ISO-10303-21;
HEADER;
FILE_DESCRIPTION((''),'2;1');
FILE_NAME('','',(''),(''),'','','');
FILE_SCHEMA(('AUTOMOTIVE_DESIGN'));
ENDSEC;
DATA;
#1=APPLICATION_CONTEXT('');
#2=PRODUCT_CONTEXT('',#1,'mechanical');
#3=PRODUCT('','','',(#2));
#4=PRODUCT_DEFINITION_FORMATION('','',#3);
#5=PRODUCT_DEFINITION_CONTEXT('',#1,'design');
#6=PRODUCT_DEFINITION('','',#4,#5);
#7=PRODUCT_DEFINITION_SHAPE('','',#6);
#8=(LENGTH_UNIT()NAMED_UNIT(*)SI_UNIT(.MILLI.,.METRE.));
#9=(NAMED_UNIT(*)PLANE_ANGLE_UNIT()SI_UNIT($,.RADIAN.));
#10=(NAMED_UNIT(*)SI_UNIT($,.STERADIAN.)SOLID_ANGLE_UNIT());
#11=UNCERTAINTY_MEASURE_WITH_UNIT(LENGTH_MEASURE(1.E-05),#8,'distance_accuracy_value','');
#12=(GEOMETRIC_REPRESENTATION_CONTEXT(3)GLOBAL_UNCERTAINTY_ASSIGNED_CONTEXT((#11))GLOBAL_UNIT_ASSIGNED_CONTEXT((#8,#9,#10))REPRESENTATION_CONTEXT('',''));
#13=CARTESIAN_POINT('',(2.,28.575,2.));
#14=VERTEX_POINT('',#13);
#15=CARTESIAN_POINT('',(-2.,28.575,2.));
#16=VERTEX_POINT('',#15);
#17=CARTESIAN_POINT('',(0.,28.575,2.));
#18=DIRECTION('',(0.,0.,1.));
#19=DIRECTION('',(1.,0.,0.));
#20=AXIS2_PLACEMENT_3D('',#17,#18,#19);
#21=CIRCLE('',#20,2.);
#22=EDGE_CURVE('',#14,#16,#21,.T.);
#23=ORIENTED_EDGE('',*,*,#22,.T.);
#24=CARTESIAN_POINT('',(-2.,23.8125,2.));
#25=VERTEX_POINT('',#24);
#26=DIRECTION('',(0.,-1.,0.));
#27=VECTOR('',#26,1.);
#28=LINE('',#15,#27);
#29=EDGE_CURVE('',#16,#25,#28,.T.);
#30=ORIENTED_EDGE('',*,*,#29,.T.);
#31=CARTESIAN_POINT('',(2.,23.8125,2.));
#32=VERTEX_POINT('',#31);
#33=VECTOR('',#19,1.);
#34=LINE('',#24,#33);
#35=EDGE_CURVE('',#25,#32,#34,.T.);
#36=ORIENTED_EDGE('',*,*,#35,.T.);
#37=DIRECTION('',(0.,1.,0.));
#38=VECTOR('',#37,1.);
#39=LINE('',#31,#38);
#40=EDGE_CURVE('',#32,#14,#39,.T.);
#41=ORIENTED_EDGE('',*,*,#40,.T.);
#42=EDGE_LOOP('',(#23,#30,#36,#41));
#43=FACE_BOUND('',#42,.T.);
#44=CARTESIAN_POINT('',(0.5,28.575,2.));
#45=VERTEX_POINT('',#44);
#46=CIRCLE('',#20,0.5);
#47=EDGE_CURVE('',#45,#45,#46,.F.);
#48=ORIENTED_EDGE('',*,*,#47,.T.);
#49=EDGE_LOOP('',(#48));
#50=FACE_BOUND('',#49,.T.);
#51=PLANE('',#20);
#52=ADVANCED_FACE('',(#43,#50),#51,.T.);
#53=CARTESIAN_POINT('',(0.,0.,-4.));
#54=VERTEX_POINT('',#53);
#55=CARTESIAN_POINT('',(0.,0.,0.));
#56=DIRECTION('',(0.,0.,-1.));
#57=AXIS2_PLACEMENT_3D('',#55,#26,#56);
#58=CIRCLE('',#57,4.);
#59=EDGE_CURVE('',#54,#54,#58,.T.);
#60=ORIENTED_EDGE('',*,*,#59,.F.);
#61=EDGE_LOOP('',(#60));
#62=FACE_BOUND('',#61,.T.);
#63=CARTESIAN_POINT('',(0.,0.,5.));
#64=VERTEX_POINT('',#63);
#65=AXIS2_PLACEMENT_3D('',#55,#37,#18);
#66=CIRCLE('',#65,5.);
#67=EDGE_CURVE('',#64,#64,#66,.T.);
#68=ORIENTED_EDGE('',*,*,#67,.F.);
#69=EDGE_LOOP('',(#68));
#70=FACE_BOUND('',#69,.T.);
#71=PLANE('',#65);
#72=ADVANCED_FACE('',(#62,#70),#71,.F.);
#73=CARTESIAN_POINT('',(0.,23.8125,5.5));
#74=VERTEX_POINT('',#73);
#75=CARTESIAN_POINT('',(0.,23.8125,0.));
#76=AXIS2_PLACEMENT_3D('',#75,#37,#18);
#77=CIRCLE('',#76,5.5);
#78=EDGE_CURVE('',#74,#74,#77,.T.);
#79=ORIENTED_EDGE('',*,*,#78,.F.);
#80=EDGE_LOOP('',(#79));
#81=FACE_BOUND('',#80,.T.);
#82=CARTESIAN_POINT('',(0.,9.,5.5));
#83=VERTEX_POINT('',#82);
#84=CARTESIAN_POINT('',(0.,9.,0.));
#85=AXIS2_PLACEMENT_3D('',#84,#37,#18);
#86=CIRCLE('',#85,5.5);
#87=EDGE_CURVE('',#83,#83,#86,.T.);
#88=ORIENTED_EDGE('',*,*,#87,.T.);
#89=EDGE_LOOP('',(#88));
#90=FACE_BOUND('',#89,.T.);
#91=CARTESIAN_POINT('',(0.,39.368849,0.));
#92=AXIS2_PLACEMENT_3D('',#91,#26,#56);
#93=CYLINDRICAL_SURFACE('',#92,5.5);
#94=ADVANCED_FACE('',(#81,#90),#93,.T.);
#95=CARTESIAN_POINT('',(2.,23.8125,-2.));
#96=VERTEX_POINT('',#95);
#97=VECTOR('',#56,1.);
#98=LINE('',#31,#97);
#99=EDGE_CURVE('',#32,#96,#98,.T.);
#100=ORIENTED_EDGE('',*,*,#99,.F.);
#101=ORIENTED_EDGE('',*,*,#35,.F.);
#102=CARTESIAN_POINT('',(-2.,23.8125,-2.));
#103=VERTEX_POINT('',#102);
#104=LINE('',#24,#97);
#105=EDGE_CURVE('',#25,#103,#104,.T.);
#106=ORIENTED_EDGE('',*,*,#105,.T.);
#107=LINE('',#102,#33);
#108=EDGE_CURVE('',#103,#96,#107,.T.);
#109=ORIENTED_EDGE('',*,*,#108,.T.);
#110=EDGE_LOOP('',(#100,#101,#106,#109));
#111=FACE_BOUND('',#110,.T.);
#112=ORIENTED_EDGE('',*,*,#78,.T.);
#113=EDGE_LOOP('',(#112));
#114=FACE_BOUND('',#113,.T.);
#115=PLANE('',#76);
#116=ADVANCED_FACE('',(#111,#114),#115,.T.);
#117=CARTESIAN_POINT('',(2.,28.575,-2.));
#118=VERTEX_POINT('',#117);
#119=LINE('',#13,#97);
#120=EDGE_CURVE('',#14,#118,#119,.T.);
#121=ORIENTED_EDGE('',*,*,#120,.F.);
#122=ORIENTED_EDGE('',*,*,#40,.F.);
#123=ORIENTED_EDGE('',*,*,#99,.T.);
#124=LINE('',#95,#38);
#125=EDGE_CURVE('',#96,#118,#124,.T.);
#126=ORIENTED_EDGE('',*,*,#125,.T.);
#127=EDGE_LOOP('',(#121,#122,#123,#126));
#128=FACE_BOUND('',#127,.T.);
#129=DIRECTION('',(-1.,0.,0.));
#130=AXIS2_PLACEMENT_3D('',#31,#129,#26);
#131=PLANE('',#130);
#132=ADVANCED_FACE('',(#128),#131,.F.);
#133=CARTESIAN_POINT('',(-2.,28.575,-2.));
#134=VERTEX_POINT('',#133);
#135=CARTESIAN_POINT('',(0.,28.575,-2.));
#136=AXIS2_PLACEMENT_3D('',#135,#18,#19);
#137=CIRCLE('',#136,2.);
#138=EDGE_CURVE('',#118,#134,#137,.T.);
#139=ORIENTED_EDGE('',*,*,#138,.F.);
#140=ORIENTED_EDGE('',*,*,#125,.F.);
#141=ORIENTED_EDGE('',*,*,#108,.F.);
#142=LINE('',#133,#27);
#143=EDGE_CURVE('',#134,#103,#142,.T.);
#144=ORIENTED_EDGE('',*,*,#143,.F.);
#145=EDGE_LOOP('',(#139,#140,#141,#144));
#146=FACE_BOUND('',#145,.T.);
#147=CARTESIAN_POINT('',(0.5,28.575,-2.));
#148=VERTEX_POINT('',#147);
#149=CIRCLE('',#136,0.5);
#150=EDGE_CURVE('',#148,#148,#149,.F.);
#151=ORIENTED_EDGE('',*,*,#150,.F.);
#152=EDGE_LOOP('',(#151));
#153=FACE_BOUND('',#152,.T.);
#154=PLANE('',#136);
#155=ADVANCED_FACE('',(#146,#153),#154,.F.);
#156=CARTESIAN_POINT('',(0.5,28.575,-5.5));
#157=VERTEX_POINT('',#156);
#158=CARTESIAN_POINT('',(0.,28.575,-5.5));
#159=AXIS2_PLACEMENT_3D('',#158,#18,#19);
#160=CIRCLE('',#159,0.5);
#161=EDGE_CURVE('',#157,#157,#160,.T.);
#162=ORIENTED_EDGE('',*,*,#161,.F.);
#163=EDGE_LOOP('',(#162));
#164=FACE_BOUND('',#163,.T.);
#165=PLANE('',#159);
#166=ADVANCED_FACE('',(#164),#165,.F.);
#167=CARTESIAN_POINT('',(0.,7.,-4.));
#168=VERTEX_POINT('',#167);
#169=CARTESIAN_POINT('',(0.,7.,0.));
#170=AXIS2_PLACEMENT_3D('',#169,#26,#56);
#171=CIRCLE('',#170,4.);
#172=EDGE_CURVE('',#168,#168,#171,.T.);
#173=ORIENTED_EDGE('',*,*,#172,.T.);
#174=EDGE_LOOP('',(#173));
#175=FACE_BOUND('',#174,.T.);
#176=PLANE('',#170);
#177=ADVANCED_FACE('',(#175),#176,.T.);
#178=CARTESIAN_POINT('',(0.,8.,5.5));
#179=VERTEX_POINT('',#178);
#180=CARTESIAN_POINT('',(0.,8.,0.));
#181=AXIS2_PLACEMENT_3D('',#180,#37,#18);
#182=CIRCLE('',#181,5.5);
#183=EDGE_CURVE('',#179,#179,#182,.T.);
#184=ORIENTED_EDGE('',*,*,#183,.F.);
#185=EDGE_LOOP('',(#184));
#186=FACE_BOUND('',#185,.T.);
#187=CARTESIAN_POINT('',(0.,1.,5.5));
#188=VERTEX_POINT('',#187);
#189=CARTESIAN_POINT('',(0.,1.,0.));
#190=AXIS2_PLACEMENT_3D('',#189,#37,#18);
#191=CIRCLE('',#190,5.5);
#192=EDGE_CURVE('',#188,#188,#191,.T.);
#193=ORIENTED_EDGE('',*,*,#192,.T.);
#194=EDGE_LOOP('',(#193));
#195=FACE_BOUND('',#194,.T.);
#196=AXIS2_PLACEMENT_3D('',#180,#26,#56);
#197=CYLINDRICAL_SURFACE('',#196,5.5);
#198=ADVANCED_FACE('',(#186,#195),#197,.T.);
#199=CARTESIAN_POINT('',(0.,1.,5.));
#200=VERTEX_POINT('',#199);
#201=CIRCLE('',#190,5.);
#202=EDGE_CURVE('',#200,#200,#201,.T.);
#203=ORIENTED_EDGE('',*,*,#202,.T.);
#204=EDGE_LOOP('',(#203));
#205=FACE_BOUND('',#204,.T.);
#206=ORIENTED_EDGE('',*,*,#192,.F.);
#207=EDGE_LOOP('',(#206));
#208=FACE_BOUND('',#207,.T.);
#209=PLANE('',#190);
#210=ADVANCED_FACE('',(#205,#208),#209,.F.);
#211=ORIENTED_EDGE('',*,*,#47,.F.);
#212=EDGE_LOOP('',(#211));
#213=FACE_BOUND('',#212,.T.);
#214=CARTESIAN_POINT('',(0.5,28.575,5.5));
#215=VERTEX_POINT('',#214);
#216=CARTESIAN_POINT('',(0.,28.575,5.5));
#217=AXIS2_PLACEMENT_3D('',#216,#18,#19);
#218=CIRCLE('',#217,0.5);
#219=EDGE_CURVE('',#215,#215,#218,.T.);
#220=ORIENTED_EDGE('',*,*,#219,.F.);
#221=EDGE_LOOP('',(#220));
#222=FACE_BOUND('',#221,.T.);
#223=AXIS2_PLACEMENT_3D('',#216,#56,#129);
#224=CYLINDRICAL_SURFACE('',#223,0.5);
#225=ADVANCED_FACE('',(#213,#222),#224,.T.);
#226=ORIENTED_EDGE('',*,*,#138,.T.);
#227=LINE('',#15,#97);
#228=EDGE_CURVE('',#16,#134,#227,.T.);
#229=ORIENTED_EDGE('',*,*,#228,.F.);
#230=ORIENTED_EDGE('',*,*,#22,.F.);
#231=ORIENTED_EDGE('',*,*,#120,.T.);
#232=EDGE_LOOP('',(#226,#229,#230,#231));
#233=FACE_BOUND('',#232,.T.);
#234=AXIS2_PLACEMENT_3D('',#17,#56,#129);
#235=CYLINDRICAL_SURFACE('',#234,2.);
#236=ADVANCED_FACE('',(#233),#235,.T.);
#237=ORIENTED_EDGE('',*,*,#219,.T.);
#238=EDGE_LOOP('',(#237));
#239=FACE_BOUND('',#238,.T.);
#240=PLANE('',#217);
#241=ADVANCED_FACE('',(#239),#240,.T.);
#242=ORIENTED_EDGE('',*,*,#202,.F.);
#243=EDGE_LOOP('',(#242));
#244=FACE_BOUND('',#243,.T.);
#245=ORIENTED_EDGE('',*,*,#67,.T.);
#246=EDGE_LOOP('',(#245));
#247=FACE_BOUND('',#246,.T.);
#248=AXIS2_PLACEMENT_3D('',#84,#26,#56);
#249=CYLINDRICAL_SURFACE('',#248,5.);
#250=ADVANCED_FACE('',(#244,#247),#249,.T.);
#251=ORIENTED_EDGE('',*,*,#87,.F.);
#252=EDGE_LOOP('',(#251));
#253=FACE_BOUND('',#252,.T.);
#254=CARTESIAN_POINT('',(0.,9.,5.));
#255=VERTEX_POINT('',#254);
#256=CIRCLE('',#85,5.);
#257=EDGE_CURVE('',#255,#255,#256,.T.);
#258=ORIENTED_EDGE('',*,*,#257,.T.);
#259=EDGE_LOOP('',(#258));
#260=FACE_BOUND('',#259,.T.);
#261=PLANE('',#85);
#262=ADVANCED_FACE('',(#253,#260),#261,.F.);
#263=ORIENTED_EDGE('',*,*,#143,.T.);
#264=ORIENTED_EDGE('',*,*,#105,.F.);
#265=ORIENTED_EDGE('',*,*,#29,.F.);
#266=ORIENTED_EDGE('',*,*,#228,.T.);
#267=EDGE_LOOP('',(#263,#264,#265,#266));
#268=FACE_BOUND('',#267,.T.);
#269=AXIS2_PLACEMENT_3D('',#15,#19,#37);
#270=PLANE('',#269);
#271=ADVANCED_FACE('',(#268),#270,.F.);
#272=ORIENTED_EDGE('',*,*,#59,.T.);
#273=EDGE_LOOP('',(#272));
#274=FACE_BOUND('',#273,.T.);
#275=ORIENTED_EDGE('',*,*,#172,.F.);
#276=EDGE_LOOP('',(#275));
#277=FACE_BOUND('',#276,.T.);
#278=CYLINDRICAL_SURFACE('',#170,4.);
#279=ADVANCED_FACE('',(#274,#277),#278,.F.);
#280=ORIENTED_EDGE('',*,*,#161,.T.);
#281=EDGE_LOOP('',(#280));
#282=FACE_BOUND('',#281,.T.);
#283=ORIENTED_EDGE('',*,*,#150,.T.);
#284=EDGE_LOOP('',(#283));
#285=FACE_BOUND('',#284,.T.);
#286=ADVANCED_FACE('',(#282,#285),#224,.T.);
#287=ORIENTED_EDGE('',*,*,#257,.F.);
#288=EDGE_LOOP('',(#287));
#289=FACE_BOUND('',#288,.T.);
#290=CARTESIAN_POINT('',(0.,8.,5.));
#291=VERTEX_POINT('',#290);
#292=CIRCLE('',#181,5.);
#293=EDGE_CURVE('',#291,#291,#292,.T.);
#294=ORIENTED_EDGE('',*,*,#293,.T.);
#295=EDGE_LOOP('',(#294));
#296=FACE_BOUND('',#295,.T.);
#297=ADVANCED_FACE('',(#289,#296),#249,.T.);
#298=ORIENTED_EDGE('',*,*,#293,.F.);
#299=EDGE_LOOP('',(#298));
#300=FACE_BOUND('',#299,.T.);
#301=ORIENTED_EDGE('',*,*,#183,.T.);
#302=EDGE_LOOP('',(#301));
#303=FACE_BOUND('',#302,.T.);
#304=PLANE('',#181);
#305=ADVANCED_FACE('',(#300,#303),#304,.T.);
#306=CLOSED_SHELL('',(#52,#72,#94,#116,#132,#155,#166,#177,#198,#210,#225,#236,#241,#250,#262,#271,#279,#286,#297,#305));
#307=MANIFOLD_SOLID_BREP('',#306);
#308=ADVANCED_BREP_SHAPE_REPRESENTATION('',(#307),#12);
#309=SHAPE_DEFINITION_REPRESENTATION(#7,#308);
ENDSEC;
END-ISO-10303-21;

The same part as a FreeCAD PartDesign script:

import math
import FreeCAD as App
import Part
import Sketcher
Q = App.Units.Quantity

doc = App.newDocument("Part")
body = doc.addObject("PartDesign::Body", "Body")

# Sketch on XZ plane
sketch1 = body.newObject("Sketcher::SketchObject", "Sketch")
sketch1.AttachmentSupport = (doc.getObject("XZ_Plane"), [""])
sketch1.MapMode = "FlatFace"
sketch1.addGeometry(Part.Circle(App.Vector(0, 0, 0), App.Vector(0, 0, 1), 5), False)
sketch1.addConstraint([
    Sketcher.Constraint("Coincident", 0, 3, -1, 1),
    Sketcher.Constraint("Diameter", 0, Q("10 mm")),
])
pad1 = body.newObject("PartDesign::Pad", "Pad")
pad1.Profile = sketch1
pad1.Length = 9
pad1.Reversed = True

# Sketch on XZ plane
sketch2 = body.newObject("Sketcher::SketchObject", "Sketch001")
sketch2.AttachmentSupport = (doc.getObject("XZ_Plane"), [""])
sketch2.MapMode = "FlatFace"
sketch2.AttachmentOffset = App.Placement(App.Vector(0, 0, -4.5), App.Rotation())
sketch2.addGeometry(Part.Circle(App.Vector(0, 0, 0), App.Vector(0, 0, 1), 6), False)
sketch2.addConstraint([
    Sketcher.Constraint("Coincident", 0, 3, -1, 1),
    Sketcher.Constraint("Diameter", 0, Q("11 mm")),
])
pad2 = body.newObject("PartDesign::Pad", "Pad001")
pad2.Profile = sketch2
pad2.Length = 7
pad2.Midplane = True

# Sketch on XZ plane
sketch3 = body.newObject("Sketcher::SketchObject", "Sketch002")
sketch3.AttachmentSupport = (doc.getObject("XZ_Plane"), [""])
sketch3.MapMode = "FlatFace"
sketch3.AttachmentOffset = App.Placement(App.Vector(0, 0, -23.8125), App.Rotation())
sketch3.addGeometry(Part.Circle(App.Vector(0, 0, 0), App.Vector(0, 0, 1), 6), False)
sketch3.addConstraint([
    Sketcher.Constraint("Coincident", 0, 3, -1, 1),
    Sketcher.Constraint("Diameter", 0, Q("11 mm")),
])
pad3 = body.newObject("PartDesign::Pad", "Pad002")
pad3.Profile = sketch3
pad3.Length = 14.8125

# Sketch on XZ plane
sketch4 = body.newObject("Sketcher::SketchObject", "Sketch003")
sketch4.AttachmentSupport = (doc.getObject("XZ_Plane"), [""])
sketch4.MapMode = "FlatFace"
sketch4.addGeometry(Part.Circle(App.Vector(0, 0, 0), App.Vector(0, 0, 1), 4), False)
sketch4.addConstraint([
    Sketcher.Constraint("Coincident", 0, 3, -1, 1),
    Sketcher.Constraint("Diameter", 0, Q("8 mm")),
])
pocket1 = body.newObject("PartDesign::Pocket", "Pocket")
pocket1.Profile = sketch4
pocket1.Length = 7

# Sketch on XY plane
sketch5 = body.newObject("Sketcher::SketchObject", "Sketch004")
sketch5.AttachmentSupport = (doc.getObject("XY_Plane"), [""])
sketch5.MapMode = "FlatFace"
sketch5.addGeometry([
    Part.LineSegment(App.Vector(-2, 23.8, 0), App.Vector(2, 23.8, 0)),
    Part.LineSegment(App.Vector(2, 23.8, 0), App.Vector(2, 28.6, 0)),
    Part.ArcOfCircle(Part.Circle(App.Vector(0, 28.6, 0), App.Vector(0, 0, 1), 2), math.radians(0), math.radians(180)),
    Part.LineSegment(App.Vector(-2, 28.6, 0), App.Vector(-2, 23.8, 0)),
], False)
sketch5.addConstraint([
    Sketcher.Constraint("Coincident", 0, 2, 1, 1),
    Sketcher.Constraint("Tangent", 1, 2, 2, 1),
    Sketcher.Constraint("Tangent", 2, 2, 3, 1),
    Sketcher.Constraint("Coincident", 3, 2, 0, 1),
    Sketcher.Constraint("Horizontal", 0),
    Sketcher.Constraint("Vertical", 1),
    Sketcher.Constraint("Vertical", 3),
    Sketcher.Constraint("PointOnObject", 2, 3, -2),
    Sketcher.Constraint("Radius", 2, Q("2 mm")),
    Sketcher.Constraint("DistanceY", 1, 1, 1, 2, Q("4.7625 mm")),
    Sketcher.Constraint("DistanceY", -1, 1, 2, 3, Q("28.575 mm")),
])
pad4 = body.newObject("PartDesign::Pad", "Pad003")
pad4.Profile = sketch5
pad4.Length = 4
pad4.Midplane = True

# Sketch on XY plane
sketch6 = body.newObject("Sketcher::SketchObject", "Sketch005")
sketch6.AttachmentSupport = (doc.getObject("XY_Plane"), [""])
sketch6.MapMode = "FlatFace"
sketch6.addGeometry(Part.Circle(App.Vector(0, 28.6, 0), App.Vector(0, 0, 1), 0.5), False)
sketch6.addConstraint([
    Sketcher.Constraint("PointOnObject", 0, 3, -2),
    Sketcher.Constraint("Diameter", 0, Q("1 mm")),
    Sketcher.Constraint("DistanceY", -1, 1, 0, 3, Q("28.575 mm")),
])
pad5 = body.newObject("PartDesign::Pad", "Pad004")
pad5.Profile = sketch6
pad5.Type = "TwoLengths"
pad5.Length = 5.5
pad5.Length2 = 5.5

doc.recompute()
